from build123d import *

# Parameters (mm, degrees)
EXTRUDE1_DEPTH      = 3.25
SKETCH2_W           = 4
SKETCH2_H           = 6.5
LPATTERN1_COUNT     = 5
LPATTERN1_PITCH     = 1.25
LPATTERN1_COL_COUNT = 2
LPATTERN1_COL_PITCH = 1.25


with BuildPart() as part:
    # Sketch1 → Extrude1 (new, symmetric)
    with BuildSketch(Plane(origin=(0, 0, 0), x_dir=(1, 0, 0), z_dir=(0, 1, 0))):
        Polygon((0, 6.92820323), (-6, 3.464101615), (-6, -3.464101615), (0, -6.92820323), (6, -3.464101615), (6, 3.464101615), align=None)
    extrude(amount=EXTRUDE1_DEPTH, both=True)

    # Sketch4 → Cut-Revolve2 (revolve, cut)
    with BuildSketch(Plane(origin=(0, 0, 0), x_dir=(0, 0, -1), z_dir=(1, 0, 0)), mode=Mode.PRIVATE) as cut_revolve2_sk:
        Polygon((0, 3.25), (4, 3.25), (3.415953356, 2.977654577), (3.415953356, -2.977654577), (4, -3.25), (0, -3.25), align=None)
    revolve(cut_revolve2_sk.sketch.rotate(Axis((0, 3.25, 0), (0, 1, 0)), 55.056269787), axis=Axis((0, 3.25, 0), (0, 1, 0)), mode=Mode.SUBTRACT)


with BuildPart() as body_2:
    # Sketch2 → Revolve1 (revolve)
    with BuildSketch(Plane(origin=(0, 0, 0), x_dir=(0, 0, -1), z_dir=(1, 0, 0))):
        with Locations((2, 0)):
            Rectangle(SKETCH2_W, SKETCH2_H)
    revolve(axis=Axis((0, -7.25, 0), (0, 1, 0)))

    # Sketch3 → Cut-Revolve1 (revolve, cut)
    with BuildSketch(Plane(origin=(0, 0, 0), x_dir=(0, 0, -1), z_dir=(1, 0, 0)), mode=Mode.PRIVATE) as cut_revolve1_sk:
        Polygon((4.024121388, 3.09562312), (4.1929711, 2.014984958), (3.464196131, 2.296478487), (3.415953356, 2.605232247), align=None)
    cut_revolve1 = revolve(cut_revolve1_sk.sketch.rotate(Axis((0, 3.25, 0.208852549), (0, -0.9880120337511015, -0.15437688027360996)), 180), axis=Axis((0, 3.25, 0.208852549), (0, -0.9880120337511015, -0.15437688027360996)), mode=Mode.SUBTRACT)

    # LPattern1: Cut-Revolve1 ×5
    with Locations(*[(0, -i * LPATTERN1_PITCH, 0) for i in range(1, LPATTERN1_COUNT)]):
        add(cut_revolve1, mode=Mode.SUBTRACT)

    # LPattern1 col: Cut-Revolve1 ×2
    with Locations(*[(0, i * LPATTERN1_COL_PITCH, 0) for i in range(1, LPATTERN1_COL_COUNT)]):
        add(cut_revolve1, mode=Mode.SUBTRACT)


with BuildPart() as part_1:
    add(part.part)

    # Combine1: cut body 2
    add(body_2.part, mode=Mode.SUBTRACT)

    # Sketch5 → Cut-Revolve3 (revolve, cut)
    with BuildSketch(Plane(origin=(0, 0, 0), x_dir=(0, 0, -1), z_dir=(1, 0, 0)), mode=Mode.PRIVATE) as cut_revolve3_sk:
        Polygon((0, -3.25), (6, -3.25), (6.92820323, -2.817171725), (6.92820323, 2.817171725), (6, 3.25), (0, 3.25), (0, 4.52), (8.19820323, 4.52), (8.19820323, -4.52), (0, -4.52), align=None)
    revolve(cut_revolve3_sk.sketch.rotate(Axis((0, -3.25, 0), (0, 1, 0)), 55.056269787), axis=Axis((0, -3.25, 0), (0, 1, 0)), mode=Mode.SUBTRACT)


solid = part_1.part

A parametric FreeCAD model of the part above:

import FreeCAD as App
import Part
import Sketcher

V = App.Vector
Q = App.Units.Quantity

doc = App.newDocument("Part")
body = doc.addObject("PartDesign::Body", "Body")

# Sketch on XZ plane
sketch1 = doc.addObject("Sketcher::SketchObject", "Sketch")
body.addObject(sketch1)
sketch1.AttachmentSupport = (doc.XZ_Plane, [""])
sketch1.MapMode = "FlatFace"
sketch1.addGeometry(Part.LineSegment(V(0, -6.928203, 0), V(-6, -3.464102, 0)), False)
sketch1.addGeometry(Part.LineSegment(V(-6, -3.464102, 0), V(-6, 3.464102, 0)), False)
sketch1.addGeometry(Part.LineSegment(V(-6, 3.464102, 0), V(0, 6.928203, 0)), False)
sketch1.addGeometry(Part.LineSegment(V(0, 6.928203, 0), V(6, 3.464102, 0)), False)
sketch1.addGeometry(Part.LineSegment(V(6, 3.464102, 0), V(6, -3.464102, 0)), False)
sketch1.addGeometry(Part.LineSegment(V(6, -3.464102, 0), V(0, -6.928203, 0)), False)
sketch1.addConstraint(Sketcher.Constraint("Coincident", 0, 2, 1, 1))
sketch1.addConstraint(Sketcher.Constraint("Coincident", 1, 2, 2, 1))
sketch1.addConstraint(Sketcher.Constraint("Coincident", 2, 2, 3, 1))
sketch1.addConstraint(Sketcher.Constraint("Coincident", 3, 2, 4, 1))
sketch1.addConstraint(Sketcher.Constraint("Coincident", 4, 2, 5, 1))
sketch1.addConstraint(Sketcher.Constraint("Coincident", 5, 2, 0, 1))
sketch1.addConstraint(Sketcher.Constraint("Vertical", 1))
sketch1.addConstraint(Sketcher.Constraint("Vertical", 4))
sketch1.addConstraint(Sketcher.Constraint("Symmetric", 0, 2, 3, 2, -1, 1))
sketch1.addConstraint(Sketcher.Constraint("Symmetric", 2, 2, 5, 2, -1, 1))
sketch1.addConstraint(Sketcher.Constraint("PointOnObject", 2, 2, -2))
sketch1.addConstraint(Sketcher.Constraint("Parallel", 2, 5))
sketch1.addConstraint(Sketcher.Constraint("Horizontal", 1, 2, 3, 2))
sketch1.addConstraint(Sketcher.Constraint("Angle", 0, Q("150 deg")))
sketch1.addConstraint(Sketcher.Constraint("DistanceX", 0, 2, -1, 1, Q("6 mm")))
sketch1.addConstraint(Sketcher.Constraint("DistanceY", 0, 2, -1, 1, Q("3.464102 mm")))
pad1 = doc.addObject("PartDesign::Pad", "Pad")
body.addObject(pad1)
pad1.Profile = sketch1
pad1.Length = 6.5
pad1.Midplane = True

# Sketch on YZ plane
sketch2 = doc.addObject("Sketcher::SketchObject", "Sketch001")
body.addObject(sketch2)
sketch2.AttachmentSupport = (doc.YZ_Plane, [""])
sketch2.MapMode = "FlatFace"
sketch2.addGeometry(Part.LineSegment(V(3.25, -4, 0), V(3.25, 0, 0)), False)
sketch2.addGeometry(Part.LineSegment(V(3.25, 0, 0), V(-3.25, 0, 0)), False)
sketch2.addGeometry(Part.LineSegment(V(-3.25, 0, 0), V(-3.25, -4, 0)), False)
sketch2.addGeometry(Part.LineSegment(V(-3.25, -4, 0), V(-2.977655, -3.415953, 0)), False)
sketch2.addGeometry(Part.LineSegment(V(-2.977655, -3.415953, 0), V(2.977655, -3.415953, 0)), False)
sketch2.addGeometry(Part.LineSegment(V(2.977655, -3.415953, 0), V(3.25, -4, 0)), False)
sketch2.addConstraint(Sketcher.Constraint("Coincident", 0, 2, 1, 1))
sketch2.addConstraint(Sketcher.Constraint("Coincident", 1, 2, 2, 1))
sketch2.addConstraint(Sketcher.Constraint("Coincident", 2, 2, 3, 1))
sketch2.addConstraint(Sketcher.Constraint("Coincident", 3, 2, 4, 1))
sketch2.addConstraint(Sketcher.Constraint("Coincident", 4, 2, 5, 1))
sketch2.addConstraint(Sketcher.Constraint("Coincident", 5, 2, 0, 1))
sketch2.addConstraint(Sketcher.Constraint("Vertical", 0))
sketch2.addConstraint(Sketcher.Constraint("Horizontal", 1))
sketch2.addConstraint(Sketcher.Constraint("Vertical", 2))
sketch2.addConstraint(Sketcher.Constraint("Horizontal", 4))
sketch2.addConstraint(Sketcher.Constraint("Symmetric", 0, 2, 1, 2, -1, 1))
sketch2.addConstraint(Sketcher.Constraint("Horizontal", 2, 2, 5, 2))
sketch2.addConstraint(Sketcher.Constraint("Equal", 3, 5))
sketch2.addConstraint(Sketcher.Constraint("DistanceY", 0, 1, 0, 2, Q("4 mm")))
sketch2.addConstraint(Sketcher.Constraint("Angle", 3, Q("65 deg")))
sketch2.addConstraint(Sketcher.Constraint("DistanceX", 1, 2, 1, 1, Q("6.5 mm")))
sketch2.addConstraint(Sketcher.Constraint("DistanceX", 4, 1, 4, 2, Q("5.955309 mm")))
groove = doc.addObject("PartDesign::Groove", "Groove")
body.addObject(groove)
groove.Profile = sketch2
groove.ReferenceAxis = (sketch2, ["H_Axis"])
groove.Angle = 360
body2 = doc.addObject("PartDesign::Body", "Body001")

# Sketch on YZ plane
sketch3 = doc.addObject("Sketcher::SketchObject", "Sketch002")
body2.addObject(sketch3)
sketch3.AttachmentSupport = (doc.getObject("YZ_Plane001"), [""])
sketch3.MapMode = "FlatFace"
sketch3.addGeometry(Part.LineSegment(V(3.25, 0, 0), V(-3.25, 0, 0)), False)
sketch3.addGeometry(Part.LineSegment(V(-3.25, 0, 0), V(-3.25, -4, 0)), False)
sketch3.addGeometry(Part.LineSegment(V(-3.25, -4, 0), V(3.25, -4, 0)), False)
sketch3.addGeometry(Part.LineSegment(V(3.25, -4, 0), V(3.25, 0, 0)), False)
sketch3.addConstraint(Sketcher.Constraint("Coincident", 0, 2, 1, 1))
sketch3.addConstraint(Sketcher.Constraint("Coincident", 1, 2, 2, 1))
sketch3.addConstraint(Sketcher.Constraint("Coincident", 2, 2, 3, 1))
sketch3.addConstraint(Sketcher.Constraint("Coincident", 3, 2, 0, 1))
sketch3.addConstraint(Sketcher.Constraint("Horizontal", 0))
sketch3.addConstraint(Sketcher.Constraint("Vertical", 1))
sketch3.addConstraint(Sketcher.Constraint("Horizontal", 2))
sketch3.addConstraint(Sketcher.Constraint("Vertical", 3))
sketch3.addConstraint(Sketcher.Constraint("Symmetric", 0, 2, 3, 2, -1, 1))
sketch3.addConstraint(Sketcher.Constraint("DistanceY", 1, 2, 1, 1, Q("4 mm")))
sketch3.addConstraint(Sketcher.Constraint("DistanceX", 0, 2, 0, 1, Q("6.5 mm")))
revolution = doc.addObject("PartDesign::Revolution", "Revolution")
body2.addObject(revolution)
revolution.Profile = sketch3
revolution.ReferenceAxis = (sketch3, ["H_Axis"])
revolution.Angle = 360

# Sketch on YZ plane
sketch4 = doc.addObject("Sketcher::SketchObject", "Sketch003")
body2.addObject(sketch4)
sketch4.AttachmentSupport = (doc.getObject("YZ_Plane001"), [""])
sketch4.MapMode = "FlatFace"
sketch4.addGeometry(Part.LineSegment(V(2.014985, -4.192971, 0), V(3.095623, -4.024121, 0)), False)
sketch4.addGeometry(Part.LineSegment(V(3.095623, -4.024121, 0), V(2.605232, -3.415953, 0)), False)
sketch4.addGeometry(Part.LineSegment(V(2.605232, -3.415953, 0), V(2.296478, -3.464196, 0)), False)
sketch4.addGeometry(Part.LineSegment(V(2.296478, -3.464196, 0), V(2.014985, -4.192971, 0)), False)
sketch4.addGeometry(Part.LineSegment(V(2.453663, 0.084425, 0), V(1.373025, -0.084425, 0)), True)  # axis
sketch4.addConstraint(Sketcher.Constraint("Coincident", 0, 2, 1, 1))
sketch4.addConstraint(Sketcher.Constraint("Coincident", 1, 2, 2, 1))
sketch4.addConstraint(Sketcher.Constraint("Coincident", 2, 2, 3, 1))
sketch4.addConstraint(Sketcher.Constraint("Coincident", 3, 2, 0, 1))
sketch4.addConstraint(Sketcher.Constraint("Parallel", 0, 2))
sketch4.addConstraint(Sketcher.Constraint("Parallel", 2, 4))
sketch4.addConstraint(Sketcher.Constraint("Equal", 1, 3))
sketch4.addConstraint(Sketcher.Constraint("Equal", 0, 4))
sketch4.addConstraint(Sketcher.Constraint("Distance", 2, Q("0.3125 mm")))
sketch4.addConstraint(Sketcher.Constraint("DistanceX", 4, 2, 0, 2, Q("1.722599 mm")))
sketch4.addConstraint(Sketcher.Constraint("Distance", 0, Q("1.09375 mm")))
sketch4.addConstraint(Sketcher.Constraint("Distance", 1, Q("0.78125 mm")))
sketch4.addConstraint(Sketcher.Constraint("DistanceY", 0, 2, -1, 1, Q("4.024121 mm")))
sketch4.addConstraint(Sketcher.Constraint("DistanceX", -1, 1, 2, 2, Q("2.296478 mm")))
sketch4.addConstraint(Sketcher.Constraint("DistanceY", 3, 2, -1, 1, Q("4.192971 mm")))
sketch4.addConstraint(Sketcher.Constraint("DistanceY", 1, 2, 4, 1, Q("3.500378 mm")))
groove2 = doc.addObject("PartDesign::Groove", "Groove001")
body2.addObject(groove2)
groove2.Profile = sketch4
groove2.ReferenceAxis = (sketch4, ["Axis0"])
groove2.Angle = 360
doc.recompute()

linearpattern = doc.addObject("PartDesign::LinearPattern", "LinearPattern")
body2.addObject(linearpattern)
linearpattern.Originals = [groove2]
linearpattern.Direction = (doc.getObject("Y_Axis001"), [""])
linearpattern.Mode = "offset"
linearpattern.Offset = 1.25
linearpattern.Occurrences = 5
linearpattern.Reversed = True
body2.Tip = linearpattern
doc.recompute()

linearpattern2 = doc.addObject("PartDesign::LinearPattern", "LinearPattern001")
body2.addObject(linearpattern2)
linearpattern2.Originals = [groove2]
linearpattern2.Direction = (doc.getObject("Y_Axis001"), [""])
linearpattern2.Mode = "offset"
linearpattern2.Offset = 1.25
linearpattern2.Occurrences = 2
body2.Tip = linearpattern2
doc.recompute()

boolean = doc.addObject("PartDesign::Boolean", "Boolean")
body.addObject(boolean)
boolean.Type = "Cut"
boolean.addObjects([body2])

# Sketch on YZ plane
sketch5 = doc.addObject("Sketcher::SketchObject", "Sketch004")
body.addObject(sketch5)
sketch5.AttachmentSupport = (doc.YZ_Plane, [""])
sketch5.MapMode = "FlatFace"
sketch5.addGeometry(Part.LineSegment(V(-3.25, -6, 0), V(-3.25, 0, 0)), False)
sketch5.addGeometry(Part.LineSegment(V(-3.25, 0, 0), V(-4.52, 0, 0)), False)
sketch5.addGeometry(Part.LineSegment(V(-4.52, 0, 0), V(-4.52, -8.198203, 0)), False)
sketch5.addGeometry(Part.LineSegment(V(-4.52, -8.198203, 0), V(4.52, -8.198203, 0)), False)
sketch5.addGeometry(Part.LineSegment(V(4.52, -8.198203, 0), V(4.52, 0, 0)), False)
sketch5.addGeometry(Part.LineSegment(V(4.52, 0, 0), V(3.25, 0, 0)), False)
sketch5.addGeometry(Part.LineSegment(V(3.25, 0, 0), V(3.25, -6, 0)), False)
sketch5.addGeometry(Part.LineSegment(V(3.25, -6, 0), V(2.817172, -6.928203, 0)), False)
sketch5.addGeometry(Part.LineSegment(V(2.817172, -6.928203, 0), V(-2.817172, -6.928203, 0)), False)
sketch5.addGeometry(Part.LineSegment(V(-2.817172, -6.928203, 0), V(-3.25, -6, 0)), False)
sketch5.addConstraint(Sketcher.Constraint("Coincident", 0, 2, 1, 1))
sketch5.addConstraint(Sketcher.Constraint("Coincident", 1, 2, 2, 1))
sketch5.addConstraint(Sketcher.Constraint("Coincident", 2, 2, 3, 1))
sketch5.addConstraint(Sketcher.Constraint("Coincident", 3, 2, 4, 1))
sketch5.addConstraint(Sketcher.Constraint("Coincident", 4, 2, 5, 1))
sketch5.addConstraint(Sketcher.Constraint("Coincident", 5, 2, 6, 1))
sketch5.addConstraint(Sketcher.Constraint("Coincident", 6, 2, 7, 1))
sketch5.addConstraint(Sketcher.Constraint("Coincident", 7, 2, 8, 1))
sketch5.addConstraint(Sketcher.Constraint("Coincident", 8, 2, 9, 1))
sketch5.addConstraint(Sketcher.Constraint("Coincident", 9, 2, 0, 1))
sketch5.addConstraint(Sketcher.Constraint("Vertical", 0))
sketch5.addConstraint(Sketcher.Constraint("Horizontal", 1))
sketch5.addConstraint(Sketcher.Constraint("Vertical", 2))
sketch5.addConstraint(Sketcher.Constraint("Horizontal", 3))
sketch5.addConstraint(Sketcher.Constraint("Vertical", 4))
sketch5.addConstraint(Sketcher.Constraint("Horizontal", 5))
sketch5.addConstraint(Sketcher.Constraint("Vertical", 6))
sketch5.addConstraint(Sketcher.Constraint("Horizontal", 8))
sketch5.addConstraint(Sketcher.Constraint("Symmetric", 1, 2, 4, 2, -1, 1))
sketch5.addConstraint(Sketcher.Constraint("Symmetric", 0, 2, 5, 2, -2))
sketch5.addConstraint(Sketcher.Constraint("Horizontal", 6, 2, 9, 2))
sketch5.addConstraint(Sketcher.Constraint("Equal", 7, 9))
sketch5.addConstraint(Sketcher.Constraint("DistanceY", 0, 1, 0, 2, Q("6 mm")))
sketch5.addConstraint(Sketcher.Constraint("Angle", 7, Q("-115 deg")))
sketch5.addConstraint(Sketcher.Constraint("DistanceX", 1, 2, 1, 1, Q("1.27 mm")))
sketch5.addConstraint(Sketcher.Constraint("DistanceX", 3, 1, 3, 2, Q("9.04 mm")))
sketch5.addConstraint(Sketcher.Constraint("DistanceY", 3, 2, 7, 2, Q("1.27 mm")))
sketch5.addConstraint(Sketcher.Constraint("Distance", 7, Q("1.024159 mm")))
groove3 = doc.addObject("PartDesign::Groove", "Groove002")
body.addObject(groove3)
groove3.Profile = sketch5
groove3.ReferenceAxis = (sketch5, ["H_Axis"])
groove3.Angle = 360

doc.recompute()
